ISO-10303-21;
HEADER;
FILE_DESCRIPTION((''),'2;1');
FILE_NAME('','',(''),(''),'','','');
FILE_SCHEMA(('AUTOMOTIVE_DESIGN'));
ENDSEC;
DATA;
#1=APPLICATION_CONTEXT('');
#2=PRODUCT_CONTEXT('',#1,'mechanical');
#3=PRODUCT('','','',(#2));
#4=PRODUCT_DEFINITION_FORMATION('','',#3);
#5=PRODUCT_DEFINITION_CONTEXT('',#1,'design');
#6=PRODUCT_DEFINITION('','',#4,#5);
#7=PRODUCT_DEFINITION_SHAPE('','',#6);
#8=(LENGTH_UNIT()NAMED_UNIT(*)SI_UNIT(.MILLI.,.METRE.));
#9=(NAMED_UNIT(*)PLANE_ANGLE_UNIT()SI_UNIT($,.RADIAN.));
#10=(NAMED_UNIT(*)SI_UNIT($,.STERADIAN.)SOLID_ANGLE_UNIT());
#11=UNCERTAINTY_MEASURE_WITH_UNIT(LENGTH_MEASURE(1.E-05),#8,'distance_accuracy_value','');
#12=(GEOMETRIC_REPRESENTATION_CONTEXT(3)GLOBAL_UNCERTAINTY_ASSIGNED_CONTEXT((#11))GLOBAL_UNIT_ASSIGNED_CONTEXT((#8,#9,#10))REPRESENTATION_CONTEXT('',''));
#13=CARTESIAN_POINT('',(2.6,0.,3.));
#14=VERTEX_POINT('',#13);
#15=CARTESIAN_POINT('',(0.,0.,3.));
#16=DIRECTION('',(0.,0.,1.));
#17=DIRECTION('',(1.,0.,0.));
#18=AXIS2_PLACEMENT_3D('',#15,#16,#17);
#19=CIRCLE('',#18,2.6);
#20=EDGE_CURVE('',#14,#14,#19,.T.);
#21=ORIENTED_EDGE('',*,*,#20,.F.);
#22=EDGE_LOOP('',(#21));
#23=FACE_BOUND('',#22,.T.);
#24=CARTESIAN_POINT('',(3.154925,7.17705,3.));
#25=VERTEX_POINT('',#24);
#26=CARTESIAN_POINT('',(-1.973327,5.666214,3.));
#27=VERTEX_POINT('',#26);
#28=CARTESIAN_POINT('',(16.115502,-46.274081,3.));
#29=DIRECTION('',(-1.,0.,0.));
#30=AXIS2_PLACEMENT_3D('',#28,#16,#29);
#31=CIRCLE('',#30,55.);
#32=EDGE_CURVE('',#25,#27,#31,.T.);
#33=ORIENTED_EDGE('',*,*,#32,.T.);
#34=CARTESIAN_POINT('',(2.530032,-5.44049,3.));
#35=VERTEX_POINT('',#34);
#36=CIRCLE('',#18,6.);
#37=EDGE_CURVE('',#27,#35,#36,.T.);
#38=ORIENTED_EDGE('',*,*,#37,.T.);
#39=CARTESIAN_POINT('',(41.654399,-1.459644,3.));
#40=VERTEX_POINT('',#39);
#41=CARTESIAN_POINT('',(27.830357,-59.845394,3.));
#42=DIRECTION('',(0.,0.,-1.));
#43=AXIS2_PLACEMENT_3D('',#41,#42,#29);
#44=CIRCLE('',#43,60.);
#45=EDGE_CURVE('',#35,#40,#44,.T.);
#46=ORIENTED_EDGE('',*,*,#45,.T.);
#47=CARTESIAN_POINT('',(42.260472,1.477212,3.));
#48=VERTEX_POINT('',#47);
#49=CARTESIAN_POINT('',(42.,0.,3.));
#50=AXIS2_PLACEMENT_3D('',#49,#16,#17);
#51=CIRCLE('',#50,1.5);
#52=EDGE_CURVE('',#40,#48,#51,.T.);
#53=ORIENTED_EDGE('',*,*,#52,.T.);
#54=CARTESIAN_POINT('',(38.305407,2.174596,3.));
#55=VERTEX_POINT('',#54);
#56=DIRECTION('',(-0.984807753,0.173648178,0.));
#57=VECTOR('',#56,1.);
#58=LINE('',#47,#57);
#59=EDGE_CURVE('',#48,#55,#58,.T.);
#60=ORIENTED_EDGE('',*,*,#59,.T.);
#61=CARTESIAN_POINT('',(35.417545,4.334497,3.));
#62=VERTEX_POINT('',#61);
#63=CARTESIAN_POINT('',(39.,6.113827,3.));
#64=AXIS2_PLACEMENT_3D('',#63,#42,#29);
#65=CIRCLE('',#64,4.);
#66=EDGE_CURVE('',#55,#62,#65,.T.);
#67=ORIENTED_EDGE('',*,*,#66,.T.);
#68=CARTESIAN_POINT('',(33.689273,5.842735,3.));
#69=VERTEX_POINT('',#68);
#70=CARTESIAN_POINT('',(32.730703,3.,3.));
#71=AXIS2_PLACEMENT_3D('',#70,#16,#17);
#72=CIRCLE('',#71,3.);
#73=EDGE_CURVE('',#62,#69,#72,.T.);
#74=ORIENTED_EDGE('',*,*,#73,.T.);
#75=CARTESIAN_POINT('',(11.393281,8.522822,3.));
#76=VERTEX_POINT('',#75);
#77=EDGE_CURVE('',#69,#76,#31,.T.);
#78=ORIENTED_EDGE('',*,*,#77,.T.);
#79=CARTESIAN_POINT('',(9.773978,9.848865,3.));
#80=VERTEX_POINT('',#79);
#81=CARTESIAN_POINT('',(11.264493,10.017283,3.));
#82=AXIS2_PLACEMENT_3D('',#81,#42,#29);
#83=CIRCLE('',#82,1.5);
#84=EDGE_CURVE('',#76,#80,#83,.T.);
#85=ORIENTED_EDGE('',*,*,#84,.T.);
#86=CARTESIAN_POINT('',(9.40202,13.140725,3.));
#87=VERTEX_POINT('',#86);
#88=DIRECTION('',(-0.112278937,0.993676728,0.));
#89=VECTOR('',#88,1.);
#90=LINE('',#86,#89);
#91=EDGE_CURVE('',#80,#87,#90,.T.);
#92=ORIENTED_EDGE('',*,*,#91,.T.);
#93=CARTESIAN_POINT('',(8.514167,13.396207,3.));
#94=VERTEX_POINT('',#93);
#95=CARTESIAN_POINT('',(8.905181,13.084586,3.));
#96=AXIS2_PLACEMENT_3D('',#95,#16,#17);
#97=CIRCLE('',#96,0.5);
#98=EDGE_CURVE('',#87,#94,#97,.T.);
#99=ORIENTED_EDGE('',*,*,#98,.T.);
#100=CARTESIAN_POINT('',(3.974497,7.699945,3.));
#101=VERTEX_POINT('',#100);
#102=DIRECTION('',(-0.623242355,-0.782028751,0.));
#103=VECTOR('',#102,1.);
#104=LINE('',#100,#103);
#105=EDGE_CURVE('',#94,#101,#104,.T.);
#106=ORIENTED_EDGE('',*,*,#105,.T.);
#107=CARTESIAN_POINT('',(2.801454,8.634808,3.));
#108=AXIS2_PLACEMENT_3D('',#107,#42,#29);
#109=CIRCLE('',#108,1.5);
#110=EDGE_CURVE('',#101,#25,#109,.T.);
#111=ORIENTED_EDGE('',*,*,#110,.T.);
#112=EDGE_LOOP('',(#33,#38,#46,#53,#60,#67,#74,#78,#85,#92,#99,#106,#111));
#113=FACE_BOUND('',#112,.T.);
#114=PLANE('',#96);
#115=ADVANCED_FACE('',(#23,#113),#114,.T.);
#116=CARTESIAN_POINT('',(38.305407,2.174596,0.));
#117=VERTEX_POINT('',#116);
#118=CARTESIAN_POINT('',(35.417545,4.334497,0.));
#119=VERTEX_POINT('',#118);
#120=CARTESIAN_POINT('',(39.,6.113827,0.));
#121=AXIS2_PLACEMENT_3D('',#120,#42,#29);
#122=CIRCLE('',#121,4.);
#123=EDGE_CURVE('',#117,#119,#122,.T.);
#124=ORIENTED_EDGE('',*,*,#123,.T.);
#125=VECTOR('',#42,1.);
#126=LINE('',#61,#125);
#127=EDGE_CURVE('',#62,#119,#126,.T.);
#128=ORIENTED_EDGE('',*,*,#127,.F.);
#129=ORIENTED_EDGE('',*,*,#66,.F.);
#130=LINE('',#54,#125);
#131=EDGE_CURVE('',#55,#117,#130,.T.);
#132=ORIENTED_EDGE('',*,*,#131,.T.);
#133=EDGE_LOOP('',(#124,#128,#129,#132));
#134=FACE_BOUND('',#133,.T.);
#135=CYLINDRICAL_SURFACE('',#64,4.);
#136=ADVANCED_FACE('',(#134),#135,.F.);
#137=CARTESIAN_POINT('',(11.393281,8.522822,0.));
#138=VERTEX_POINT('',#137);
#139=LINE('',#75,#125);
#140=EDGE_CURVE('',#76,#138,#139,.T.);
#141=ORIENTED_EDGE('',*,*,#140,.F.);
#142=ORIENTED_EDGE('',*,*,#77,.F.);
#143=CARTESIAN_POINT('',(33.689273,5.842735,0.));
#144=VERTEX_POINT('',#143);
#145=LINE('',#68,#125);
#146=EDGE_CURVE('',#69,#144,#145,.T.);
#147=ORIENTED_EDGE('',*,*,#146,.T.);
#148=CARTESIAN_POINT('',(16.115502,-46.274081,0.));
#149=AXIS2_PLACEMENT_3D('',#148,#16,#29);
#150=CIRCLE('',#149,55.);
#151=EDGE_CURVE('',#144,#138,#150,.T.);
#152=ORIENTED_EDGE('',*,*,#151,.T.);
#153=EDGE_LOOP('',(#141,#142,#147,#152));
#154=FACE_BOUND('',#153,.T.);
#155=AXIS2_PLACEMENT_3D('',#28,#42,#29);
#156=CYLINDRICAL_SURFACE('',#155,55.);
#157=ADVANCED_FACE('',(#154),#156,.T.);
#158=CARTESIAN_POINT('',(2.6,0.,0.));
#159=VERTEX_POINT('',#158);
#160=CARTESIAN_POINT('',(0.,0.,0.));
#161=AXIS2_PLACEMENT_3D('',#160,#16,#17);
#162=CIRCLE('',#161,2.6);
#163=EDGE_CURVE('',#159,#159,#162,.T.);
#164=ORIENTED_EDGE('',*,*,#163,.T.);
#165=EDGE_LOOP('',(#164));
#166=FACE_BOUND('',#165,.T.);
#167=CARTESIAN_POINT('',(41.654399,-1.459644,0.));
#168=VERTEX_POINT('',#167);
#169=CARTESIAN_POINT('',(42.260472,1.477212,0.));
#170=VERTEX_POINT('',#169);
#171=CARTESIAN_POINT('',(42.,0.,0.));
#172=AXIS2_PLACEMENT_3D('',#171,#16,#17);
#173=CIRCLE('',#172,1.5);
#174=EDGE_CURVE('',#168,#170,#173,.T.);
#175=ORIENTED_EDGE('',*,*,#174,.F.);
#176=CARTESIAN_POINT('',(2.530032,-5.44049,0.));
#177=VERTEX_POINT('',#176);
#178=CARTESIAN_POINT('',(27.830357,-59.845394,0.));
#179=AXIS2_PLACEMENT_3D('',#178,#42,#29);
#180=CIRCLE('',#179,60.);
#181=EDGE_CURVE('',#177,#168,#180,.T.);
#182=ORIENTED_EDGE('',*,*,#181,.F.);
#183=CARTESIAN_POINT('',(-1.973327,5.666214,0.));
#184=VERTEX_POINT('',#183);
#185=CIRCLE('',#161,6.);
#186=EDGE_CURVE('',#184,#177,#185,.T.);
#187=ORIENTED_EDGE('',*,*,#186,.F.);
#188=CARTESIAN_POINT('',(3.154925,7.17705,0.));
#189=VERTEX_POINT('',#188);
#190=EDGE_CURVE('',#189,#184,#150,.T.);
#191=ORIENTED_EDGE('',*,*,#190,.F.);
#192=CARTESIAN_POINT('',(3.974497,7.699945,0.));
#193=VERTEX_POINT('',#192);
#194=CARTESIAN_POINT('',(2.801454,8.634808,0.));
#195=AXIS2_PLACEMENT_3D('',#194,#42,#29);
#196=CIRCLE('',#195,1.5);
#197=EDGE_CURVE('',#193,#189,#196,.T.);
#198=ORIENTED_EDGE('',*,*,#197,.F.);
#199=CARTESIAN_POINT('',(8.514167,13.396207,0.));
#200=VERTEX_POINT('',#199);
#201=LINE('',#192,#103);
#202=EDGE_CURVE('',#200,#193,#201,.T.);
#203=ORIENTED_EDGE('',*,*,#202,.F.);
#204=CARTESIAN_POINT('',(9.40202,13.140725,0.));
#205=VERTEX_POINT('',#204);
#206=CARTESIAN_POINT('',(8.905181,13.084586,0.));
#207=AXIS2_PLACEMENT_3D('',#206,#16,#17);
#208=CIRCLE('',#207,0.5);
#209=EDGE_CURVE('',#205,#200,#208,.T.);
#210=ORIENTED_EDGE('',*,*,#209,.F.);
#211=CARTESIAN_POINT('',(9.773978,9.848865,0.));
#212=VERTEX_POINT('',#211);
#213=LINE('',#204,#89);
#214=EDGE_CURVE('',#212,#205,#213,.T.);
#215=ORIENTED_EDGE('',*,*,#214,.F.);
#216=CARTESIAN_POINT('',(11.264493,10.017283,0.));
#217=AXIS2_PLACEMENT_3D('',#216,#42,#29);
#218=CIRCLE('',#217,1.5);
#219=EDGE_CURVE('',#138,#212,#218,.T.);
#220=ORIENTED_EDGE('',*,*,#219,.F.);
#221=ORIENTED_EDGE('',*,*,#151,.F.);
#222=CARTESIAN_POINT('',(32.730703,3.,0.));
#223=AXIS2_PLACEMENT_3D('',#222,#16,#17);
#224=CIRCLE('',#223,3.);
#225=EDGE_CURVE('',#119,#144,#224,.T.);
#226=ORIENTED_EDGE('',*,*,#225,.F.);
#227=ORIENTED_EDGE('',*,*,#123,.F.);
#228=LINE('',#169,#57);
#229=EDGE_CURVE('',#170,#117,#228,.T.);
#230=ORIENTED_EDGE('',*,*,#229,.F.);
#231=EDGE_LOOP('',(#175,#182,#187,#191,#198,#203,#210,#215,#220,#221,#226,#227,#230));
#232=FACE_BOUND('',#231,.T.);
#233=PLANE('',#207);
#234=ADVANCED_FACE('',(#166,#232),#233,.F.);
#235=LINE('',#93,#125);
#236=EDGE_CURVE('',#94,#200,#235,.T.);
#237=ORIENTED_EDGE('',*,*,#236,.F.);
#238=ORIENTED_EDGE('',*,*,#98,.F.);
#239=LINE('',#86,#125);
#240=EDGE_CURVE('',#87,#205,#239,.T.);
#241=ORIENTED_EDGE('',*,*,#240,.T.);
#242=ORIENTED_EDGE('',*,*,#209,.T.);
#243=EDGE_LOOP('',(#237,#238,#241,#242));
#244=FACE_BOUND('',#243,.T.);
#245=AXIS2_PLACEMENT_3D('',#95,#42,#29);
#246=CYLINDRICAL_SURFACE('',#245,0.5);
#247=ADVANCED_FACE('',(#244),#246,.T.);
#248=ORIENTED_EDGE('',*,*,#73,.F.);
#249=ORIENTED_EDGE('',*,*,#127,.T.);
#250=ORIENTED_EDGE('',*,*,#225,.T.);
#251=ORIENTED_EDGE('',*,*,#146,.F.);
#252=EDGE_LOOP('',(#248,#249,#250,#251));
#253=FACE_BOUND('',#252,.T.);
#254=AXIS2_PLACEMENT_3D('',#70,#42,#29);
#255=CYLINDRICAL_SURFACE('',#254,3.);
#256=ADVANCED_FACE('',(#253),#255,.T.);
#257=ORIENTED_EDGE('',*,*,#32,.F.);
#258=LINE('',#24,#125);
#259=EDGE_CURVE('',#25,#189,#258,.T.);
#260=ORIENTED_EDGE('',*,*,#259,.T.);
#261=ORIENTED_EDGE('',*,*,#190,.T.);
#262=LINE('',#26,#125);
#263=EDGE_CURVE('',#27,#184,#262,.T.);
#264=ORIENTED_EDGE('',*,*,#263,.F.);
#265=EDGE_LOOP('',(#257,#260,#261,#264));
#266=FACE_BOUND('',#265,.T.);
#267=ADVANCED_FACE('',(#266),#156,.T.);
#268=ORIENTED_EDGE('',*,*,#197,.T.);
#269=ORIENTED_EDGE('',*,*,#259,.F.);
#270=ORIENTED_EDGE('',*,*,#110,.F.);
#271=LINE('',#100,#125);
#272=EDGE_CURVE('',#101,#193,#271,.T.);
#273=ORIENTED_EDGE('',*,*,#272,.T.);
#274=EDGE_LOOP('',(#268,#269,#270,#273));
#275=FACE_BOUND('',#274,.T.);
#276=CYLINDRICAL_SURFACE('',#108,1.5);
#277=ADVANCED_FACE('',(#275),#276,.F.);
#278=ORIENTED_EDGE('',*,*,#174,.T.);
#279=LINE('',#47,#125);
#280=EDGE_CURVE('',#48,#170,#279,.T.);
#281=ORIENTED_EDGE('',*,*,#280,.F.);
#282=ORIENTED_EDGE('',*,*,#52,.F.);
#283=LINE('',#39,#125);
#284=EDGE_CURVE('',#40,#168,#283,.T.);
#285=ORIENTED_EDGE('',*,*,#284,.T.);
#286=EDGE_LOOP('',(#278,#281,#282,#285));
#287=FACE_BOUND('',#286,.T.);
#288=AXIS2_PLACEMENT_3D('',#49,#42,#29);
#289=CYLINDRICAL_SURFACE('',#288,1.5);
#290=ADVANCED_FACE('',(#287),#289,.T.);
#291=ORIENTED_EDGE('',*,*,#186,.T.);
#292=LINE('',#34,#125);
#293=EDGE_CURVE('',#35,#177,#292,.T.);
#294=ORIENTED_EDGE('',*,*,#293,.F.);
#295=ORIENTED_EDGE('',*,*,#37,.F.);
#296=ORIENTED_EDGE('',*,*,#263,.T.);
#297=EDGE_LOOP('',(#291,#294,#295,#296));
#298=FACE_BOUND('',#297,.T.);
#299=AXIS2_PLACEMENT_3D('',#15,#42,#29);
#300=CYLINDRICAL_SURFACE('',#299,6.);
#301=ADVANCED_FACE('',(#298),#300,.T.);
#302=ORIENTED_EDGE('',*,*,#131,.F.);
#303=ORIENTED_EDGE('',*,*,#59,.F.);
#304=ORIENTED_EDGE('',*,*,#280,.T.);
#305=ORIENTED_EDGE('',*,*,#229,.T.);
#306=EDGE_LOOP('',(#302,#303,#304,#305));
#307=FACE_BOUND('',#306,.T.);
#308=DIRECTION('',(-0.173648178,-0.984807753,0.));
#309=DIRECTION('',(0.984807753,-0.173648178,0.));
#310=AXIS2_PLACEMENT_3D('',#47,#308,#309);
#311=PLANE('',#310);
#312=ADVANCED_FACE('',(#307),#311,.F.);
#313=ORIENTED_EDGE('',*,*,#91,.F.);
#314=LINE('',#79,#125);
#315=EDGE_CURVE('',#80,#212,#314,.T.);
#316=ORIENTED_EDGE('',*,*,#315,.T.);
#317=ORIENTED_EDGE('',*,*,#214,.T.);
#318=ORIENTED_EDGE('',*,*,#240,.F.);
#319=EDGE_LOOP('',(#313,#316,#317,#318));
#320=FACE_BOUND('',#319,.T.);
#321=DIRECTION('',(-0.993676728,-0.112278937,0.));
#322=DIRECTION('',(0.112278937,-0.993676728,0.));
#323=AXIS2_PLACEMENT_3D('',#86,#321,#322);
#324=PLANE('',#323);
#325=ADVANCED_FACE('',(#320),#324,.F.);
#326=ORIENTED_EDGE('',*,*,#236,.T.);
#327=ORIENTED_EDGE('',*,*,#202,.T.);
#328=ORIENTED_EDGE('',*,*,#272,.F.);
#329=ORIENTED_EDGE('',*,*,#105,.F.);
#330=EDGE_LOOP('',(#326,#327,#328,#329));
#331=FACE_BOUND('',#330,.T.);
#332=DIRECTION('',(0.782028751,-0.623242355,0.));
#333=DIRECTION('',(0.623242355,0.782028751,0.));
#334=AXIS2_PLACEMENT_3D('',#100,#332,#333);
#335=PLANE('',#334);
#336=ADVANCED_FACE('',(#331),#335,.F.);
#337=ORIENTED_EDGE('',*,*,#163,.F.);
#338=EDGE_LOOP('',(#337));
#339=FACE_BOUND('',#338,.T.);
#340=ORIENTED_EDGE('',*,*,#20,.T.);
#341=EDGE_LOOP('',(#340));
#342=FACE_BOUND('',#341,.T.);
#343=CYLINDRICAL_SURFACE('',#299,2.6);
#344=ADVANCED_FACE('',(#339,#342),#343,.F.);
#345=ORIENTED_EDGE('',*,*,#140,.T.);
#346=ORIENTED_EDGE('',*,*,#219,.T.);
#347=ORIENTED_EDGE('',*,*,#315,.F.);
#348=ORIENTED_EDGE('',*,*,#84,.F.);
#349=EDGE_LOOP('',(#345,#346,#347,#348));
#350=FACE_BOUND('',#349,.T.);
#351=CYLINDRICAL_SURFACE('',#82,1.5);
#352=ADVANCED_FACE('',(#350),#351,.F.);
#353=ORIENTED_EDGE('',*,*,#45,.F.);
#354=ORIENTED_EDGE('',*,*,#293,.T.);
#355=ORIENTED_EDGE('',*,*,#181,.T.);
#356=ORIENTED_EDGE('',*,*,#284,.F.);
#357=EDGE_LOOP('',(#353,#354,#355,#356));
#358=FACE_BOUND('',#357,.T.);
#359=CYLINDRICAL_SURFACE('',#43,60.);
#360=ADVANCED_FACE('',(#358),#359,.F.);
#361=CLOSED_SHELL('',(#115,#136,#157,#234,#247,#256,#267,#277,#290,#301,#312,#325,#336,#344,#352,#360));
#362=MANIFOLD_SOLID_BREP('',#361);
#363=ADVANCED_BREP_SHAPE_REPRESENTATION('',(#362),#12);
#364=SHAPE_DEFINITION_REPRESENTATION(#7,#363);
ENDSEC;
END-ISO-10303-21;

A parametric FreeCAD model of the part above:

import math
import FreeCAD as App
import Part
import Sketcher
Q = App.Units.Quantity

doc = App.newDocument("Part")
params = doc.addObject("Spreadsheet::Sheet", "Params")
for row, (alias, value) in enumerate([
    ("sketch1_radius", "4 mm"),
    ("sketch1_radius2", "3 mm"),
    ("sketch1_radius3", "55 mm"),
    ("sketch1_radius4", "6 mm"),
    ("sketch1_radius5", "60 mm"),
    ("pad1_length", "3 mm"),
], start=1):
    params.set(f"A{row}", alias)
    params.set(f"B{row}", "=" + value)
    params.setAlias(f"B{row}", alias)

body = doc.addObject("PartDesign::Body", "Body")

sketch1 = body.newObject("Sketcher::SketchObject", "Sketch")
sketch1.AttachmentSupport = (doc.getObject("XY_Plane"), [""])
sketch1.MapMode = "FlatFace"
sketch1.addGeometry([
    Part.LineSegment(App.Vector(42.26, 1.48, 0), App.Vector(38.31, 2.17, 0)),
    Part.ArcOfCircle(Part.Circle(App.Vector(39, 6.11, 0), App.Vector(0, 0, 1), 4), math.radians(-154), math.radians(-100)),
    Part.ArcOfCircle(Part.Circle(App.Vector(32.73, 3, 0), App.Vector(0, 0, 1), 3), math.radians(26), math.radians(71)),
    Part.ArcOfCircle(Part.Circle(App.Vector(16.12, -46.27, 0), App.Vector(0, 0, 1), 55), math.radians(71), math.radians(95)),
    Part.ArcOfCircle(Part.Circle(App.Vector(11.26, 10.02, 0), App.Vector(0, 0, 1), 1.5), math.radians(-174), math.radians(-85)),
    Part.LineSegment(App.Vector(9.77, 9.85, 0), App.Vector(9.4, 13.14, 0)),
    Part.ArcOfCircle(Part.Circle(App.Vector(8.91, 13.08, 0), App.Vector(0, 0, 1), 0.5), math.radians(6), math.radians(141)),
    Part.LineSegment(App.Vector(8.51, 13.4, 0), App.Vector(3.97, 7.7, 0)),
    Part.ArcOfCircle(Part.Circle(App.Vector(2.8, 8.63, 0), App.Vector(0, 0, 1), 1.5), math.radians(-76), math.radians(-39)),
    Part.ArcOfCircle(Part.Circle(App.Vector(16.12, -46.27, 0), App.Vector(0, 0, 1), 55), math.radians(103.63), math.radians(109.2)),
    Part.ArcOfCircle(Part.Circle(App.Vector(0, 0, 0), App.Vector(0, 0, 1), 6), math.radians(109), math.radians(295)),
    Part.ArcOfCircle(Part.Circle(App.Vector(27.83, -59.85, 0), App.Vector(0, 0, 1), 60), math.radians(77), math.radians(115)),
    Part.ArcOfCircle(Part.Circle(App.Vector(42, 0, 0), App.Vector(0, 0, 1), 1.5), math.radians(-103), math.radians(80)),
    Part.Circle(App.Vector(0, 0, 0), App.Vector(0, 0, 1), 2.6),
], False)
sketch1.addConstraint([
    Sketcher.Constraint("Tangent", 0, 2, 1, 2),
    Sketcher.Constraint("Tangent", 1, 1, 2, 1),
    Sketcher.Constraint("Tangent", 2, 2, 3, 1),
    Sketcher.Constraint("Tangent", 3, 2, 4, 2),
    Sketcher.Constraint("Tangent", 4, 1, 5, 1),
    Sketcher.Constraint("Tangent", 5, 2, 6, 1),
    Sketcher.Constraint("Tangent", 6, 2, 7, 1),
    Sketcher.Constraint("Tangent", 7, 2, 8, 2),
    Sketcher.Constraint("Tangent", 8, 1, 9, 1),
    Sketcher.Constraint("Tangent", 9, 2, 10, 1),
    Sketcher.Constraint("Tangent", 10, 2, 11, 2),
    Sketcher.Constraint("Tangent", 11, 1, 12, 1),
    Sketcher.Constraint("Tangent", 12, 2, 0, 1),
    Sketcher.Constraint("Coincident", 10, 3, -1, 1),
    Sketcher.Constraint("Coincident", 13, 3, -1, 1),
    Sketcher.Constraint("Coincident", 9, 3, 3, 3),
    Sketcher.Constraint("Equal", 4, 8),
    Sketcher.Constraint("Equal", 3, 9),
    Sketcher.Constraint("Equal", 8, 12),
    Sketcher.Constraint("PointOnObject", 12, 3, -1),
    Sketcher.Constraint("Radius", 1, Q("4 mm")),
    Sketcher.Constraint("Radius", 2, Q("3 mm")),
    Sketcher.Constraint("Radius", 3, Q("55 mm")),
    Sketcher.Constraint("Radius", 10, Q("6 mm")),
    Sketcher.Constraint("Radius", 11, Q("60 mm")),
    Sketcher.Constraint("Diameter", 13, Q("5.2 mm")),
    Sketcher.Constraint("Radius", 4, Q("1.5 mm")),
    Sketcher.Constraint("Radius", 6, Q("0.5 mm")),
    Sketcher.Constraint("Angle", 0, Q("170 deg")),
    Sketcher.Constraint("DistanceX", -1, 1, 1, 3, Q("39 mm")),
    Sketcher.Constraint("DistanceY", -1, 1, 2, 3, Q("3 mm")),
    Sketcher.Constraint("DistanceX", -1, 1, 12, 3, Q("42 mm")),
    Sketcher.Constraint("DistanceX", 6, 3, 3, 2, Q("2.4881 mm")),
    Sketcher.Constraint("Distance", 5, Q("3.312808 mm")),
    Sketcher.Constraint("DistanceX", -1, 1, 6, 3, Q("8.905181 mm")),
    Sketcher.Constraint("DistanceY", -1, 1, 8, 3, Q("8.634808 mm")),
])
sketch1.setExpression("Constraints[20]", "Params.sketch1_radius")
sketch1.setExpression("Constraints[21]", "Params.sketch1_radius2")
sketch1.setExpression("Constraints[22]", "Params.sketch1_radius3")
sketch1.setExpression("Constraints[23]", "Params.sketch1_radius4")
sketch1.setExpression("Constraints[24]", "Params.sketch1_radius5")
pad1 = body.newObject("PartDesign::Pad", "Pad")
pad1.Profile = sketch1
pad1.setExpression("Length", "Params.pad1_length")

doc.recompute()
